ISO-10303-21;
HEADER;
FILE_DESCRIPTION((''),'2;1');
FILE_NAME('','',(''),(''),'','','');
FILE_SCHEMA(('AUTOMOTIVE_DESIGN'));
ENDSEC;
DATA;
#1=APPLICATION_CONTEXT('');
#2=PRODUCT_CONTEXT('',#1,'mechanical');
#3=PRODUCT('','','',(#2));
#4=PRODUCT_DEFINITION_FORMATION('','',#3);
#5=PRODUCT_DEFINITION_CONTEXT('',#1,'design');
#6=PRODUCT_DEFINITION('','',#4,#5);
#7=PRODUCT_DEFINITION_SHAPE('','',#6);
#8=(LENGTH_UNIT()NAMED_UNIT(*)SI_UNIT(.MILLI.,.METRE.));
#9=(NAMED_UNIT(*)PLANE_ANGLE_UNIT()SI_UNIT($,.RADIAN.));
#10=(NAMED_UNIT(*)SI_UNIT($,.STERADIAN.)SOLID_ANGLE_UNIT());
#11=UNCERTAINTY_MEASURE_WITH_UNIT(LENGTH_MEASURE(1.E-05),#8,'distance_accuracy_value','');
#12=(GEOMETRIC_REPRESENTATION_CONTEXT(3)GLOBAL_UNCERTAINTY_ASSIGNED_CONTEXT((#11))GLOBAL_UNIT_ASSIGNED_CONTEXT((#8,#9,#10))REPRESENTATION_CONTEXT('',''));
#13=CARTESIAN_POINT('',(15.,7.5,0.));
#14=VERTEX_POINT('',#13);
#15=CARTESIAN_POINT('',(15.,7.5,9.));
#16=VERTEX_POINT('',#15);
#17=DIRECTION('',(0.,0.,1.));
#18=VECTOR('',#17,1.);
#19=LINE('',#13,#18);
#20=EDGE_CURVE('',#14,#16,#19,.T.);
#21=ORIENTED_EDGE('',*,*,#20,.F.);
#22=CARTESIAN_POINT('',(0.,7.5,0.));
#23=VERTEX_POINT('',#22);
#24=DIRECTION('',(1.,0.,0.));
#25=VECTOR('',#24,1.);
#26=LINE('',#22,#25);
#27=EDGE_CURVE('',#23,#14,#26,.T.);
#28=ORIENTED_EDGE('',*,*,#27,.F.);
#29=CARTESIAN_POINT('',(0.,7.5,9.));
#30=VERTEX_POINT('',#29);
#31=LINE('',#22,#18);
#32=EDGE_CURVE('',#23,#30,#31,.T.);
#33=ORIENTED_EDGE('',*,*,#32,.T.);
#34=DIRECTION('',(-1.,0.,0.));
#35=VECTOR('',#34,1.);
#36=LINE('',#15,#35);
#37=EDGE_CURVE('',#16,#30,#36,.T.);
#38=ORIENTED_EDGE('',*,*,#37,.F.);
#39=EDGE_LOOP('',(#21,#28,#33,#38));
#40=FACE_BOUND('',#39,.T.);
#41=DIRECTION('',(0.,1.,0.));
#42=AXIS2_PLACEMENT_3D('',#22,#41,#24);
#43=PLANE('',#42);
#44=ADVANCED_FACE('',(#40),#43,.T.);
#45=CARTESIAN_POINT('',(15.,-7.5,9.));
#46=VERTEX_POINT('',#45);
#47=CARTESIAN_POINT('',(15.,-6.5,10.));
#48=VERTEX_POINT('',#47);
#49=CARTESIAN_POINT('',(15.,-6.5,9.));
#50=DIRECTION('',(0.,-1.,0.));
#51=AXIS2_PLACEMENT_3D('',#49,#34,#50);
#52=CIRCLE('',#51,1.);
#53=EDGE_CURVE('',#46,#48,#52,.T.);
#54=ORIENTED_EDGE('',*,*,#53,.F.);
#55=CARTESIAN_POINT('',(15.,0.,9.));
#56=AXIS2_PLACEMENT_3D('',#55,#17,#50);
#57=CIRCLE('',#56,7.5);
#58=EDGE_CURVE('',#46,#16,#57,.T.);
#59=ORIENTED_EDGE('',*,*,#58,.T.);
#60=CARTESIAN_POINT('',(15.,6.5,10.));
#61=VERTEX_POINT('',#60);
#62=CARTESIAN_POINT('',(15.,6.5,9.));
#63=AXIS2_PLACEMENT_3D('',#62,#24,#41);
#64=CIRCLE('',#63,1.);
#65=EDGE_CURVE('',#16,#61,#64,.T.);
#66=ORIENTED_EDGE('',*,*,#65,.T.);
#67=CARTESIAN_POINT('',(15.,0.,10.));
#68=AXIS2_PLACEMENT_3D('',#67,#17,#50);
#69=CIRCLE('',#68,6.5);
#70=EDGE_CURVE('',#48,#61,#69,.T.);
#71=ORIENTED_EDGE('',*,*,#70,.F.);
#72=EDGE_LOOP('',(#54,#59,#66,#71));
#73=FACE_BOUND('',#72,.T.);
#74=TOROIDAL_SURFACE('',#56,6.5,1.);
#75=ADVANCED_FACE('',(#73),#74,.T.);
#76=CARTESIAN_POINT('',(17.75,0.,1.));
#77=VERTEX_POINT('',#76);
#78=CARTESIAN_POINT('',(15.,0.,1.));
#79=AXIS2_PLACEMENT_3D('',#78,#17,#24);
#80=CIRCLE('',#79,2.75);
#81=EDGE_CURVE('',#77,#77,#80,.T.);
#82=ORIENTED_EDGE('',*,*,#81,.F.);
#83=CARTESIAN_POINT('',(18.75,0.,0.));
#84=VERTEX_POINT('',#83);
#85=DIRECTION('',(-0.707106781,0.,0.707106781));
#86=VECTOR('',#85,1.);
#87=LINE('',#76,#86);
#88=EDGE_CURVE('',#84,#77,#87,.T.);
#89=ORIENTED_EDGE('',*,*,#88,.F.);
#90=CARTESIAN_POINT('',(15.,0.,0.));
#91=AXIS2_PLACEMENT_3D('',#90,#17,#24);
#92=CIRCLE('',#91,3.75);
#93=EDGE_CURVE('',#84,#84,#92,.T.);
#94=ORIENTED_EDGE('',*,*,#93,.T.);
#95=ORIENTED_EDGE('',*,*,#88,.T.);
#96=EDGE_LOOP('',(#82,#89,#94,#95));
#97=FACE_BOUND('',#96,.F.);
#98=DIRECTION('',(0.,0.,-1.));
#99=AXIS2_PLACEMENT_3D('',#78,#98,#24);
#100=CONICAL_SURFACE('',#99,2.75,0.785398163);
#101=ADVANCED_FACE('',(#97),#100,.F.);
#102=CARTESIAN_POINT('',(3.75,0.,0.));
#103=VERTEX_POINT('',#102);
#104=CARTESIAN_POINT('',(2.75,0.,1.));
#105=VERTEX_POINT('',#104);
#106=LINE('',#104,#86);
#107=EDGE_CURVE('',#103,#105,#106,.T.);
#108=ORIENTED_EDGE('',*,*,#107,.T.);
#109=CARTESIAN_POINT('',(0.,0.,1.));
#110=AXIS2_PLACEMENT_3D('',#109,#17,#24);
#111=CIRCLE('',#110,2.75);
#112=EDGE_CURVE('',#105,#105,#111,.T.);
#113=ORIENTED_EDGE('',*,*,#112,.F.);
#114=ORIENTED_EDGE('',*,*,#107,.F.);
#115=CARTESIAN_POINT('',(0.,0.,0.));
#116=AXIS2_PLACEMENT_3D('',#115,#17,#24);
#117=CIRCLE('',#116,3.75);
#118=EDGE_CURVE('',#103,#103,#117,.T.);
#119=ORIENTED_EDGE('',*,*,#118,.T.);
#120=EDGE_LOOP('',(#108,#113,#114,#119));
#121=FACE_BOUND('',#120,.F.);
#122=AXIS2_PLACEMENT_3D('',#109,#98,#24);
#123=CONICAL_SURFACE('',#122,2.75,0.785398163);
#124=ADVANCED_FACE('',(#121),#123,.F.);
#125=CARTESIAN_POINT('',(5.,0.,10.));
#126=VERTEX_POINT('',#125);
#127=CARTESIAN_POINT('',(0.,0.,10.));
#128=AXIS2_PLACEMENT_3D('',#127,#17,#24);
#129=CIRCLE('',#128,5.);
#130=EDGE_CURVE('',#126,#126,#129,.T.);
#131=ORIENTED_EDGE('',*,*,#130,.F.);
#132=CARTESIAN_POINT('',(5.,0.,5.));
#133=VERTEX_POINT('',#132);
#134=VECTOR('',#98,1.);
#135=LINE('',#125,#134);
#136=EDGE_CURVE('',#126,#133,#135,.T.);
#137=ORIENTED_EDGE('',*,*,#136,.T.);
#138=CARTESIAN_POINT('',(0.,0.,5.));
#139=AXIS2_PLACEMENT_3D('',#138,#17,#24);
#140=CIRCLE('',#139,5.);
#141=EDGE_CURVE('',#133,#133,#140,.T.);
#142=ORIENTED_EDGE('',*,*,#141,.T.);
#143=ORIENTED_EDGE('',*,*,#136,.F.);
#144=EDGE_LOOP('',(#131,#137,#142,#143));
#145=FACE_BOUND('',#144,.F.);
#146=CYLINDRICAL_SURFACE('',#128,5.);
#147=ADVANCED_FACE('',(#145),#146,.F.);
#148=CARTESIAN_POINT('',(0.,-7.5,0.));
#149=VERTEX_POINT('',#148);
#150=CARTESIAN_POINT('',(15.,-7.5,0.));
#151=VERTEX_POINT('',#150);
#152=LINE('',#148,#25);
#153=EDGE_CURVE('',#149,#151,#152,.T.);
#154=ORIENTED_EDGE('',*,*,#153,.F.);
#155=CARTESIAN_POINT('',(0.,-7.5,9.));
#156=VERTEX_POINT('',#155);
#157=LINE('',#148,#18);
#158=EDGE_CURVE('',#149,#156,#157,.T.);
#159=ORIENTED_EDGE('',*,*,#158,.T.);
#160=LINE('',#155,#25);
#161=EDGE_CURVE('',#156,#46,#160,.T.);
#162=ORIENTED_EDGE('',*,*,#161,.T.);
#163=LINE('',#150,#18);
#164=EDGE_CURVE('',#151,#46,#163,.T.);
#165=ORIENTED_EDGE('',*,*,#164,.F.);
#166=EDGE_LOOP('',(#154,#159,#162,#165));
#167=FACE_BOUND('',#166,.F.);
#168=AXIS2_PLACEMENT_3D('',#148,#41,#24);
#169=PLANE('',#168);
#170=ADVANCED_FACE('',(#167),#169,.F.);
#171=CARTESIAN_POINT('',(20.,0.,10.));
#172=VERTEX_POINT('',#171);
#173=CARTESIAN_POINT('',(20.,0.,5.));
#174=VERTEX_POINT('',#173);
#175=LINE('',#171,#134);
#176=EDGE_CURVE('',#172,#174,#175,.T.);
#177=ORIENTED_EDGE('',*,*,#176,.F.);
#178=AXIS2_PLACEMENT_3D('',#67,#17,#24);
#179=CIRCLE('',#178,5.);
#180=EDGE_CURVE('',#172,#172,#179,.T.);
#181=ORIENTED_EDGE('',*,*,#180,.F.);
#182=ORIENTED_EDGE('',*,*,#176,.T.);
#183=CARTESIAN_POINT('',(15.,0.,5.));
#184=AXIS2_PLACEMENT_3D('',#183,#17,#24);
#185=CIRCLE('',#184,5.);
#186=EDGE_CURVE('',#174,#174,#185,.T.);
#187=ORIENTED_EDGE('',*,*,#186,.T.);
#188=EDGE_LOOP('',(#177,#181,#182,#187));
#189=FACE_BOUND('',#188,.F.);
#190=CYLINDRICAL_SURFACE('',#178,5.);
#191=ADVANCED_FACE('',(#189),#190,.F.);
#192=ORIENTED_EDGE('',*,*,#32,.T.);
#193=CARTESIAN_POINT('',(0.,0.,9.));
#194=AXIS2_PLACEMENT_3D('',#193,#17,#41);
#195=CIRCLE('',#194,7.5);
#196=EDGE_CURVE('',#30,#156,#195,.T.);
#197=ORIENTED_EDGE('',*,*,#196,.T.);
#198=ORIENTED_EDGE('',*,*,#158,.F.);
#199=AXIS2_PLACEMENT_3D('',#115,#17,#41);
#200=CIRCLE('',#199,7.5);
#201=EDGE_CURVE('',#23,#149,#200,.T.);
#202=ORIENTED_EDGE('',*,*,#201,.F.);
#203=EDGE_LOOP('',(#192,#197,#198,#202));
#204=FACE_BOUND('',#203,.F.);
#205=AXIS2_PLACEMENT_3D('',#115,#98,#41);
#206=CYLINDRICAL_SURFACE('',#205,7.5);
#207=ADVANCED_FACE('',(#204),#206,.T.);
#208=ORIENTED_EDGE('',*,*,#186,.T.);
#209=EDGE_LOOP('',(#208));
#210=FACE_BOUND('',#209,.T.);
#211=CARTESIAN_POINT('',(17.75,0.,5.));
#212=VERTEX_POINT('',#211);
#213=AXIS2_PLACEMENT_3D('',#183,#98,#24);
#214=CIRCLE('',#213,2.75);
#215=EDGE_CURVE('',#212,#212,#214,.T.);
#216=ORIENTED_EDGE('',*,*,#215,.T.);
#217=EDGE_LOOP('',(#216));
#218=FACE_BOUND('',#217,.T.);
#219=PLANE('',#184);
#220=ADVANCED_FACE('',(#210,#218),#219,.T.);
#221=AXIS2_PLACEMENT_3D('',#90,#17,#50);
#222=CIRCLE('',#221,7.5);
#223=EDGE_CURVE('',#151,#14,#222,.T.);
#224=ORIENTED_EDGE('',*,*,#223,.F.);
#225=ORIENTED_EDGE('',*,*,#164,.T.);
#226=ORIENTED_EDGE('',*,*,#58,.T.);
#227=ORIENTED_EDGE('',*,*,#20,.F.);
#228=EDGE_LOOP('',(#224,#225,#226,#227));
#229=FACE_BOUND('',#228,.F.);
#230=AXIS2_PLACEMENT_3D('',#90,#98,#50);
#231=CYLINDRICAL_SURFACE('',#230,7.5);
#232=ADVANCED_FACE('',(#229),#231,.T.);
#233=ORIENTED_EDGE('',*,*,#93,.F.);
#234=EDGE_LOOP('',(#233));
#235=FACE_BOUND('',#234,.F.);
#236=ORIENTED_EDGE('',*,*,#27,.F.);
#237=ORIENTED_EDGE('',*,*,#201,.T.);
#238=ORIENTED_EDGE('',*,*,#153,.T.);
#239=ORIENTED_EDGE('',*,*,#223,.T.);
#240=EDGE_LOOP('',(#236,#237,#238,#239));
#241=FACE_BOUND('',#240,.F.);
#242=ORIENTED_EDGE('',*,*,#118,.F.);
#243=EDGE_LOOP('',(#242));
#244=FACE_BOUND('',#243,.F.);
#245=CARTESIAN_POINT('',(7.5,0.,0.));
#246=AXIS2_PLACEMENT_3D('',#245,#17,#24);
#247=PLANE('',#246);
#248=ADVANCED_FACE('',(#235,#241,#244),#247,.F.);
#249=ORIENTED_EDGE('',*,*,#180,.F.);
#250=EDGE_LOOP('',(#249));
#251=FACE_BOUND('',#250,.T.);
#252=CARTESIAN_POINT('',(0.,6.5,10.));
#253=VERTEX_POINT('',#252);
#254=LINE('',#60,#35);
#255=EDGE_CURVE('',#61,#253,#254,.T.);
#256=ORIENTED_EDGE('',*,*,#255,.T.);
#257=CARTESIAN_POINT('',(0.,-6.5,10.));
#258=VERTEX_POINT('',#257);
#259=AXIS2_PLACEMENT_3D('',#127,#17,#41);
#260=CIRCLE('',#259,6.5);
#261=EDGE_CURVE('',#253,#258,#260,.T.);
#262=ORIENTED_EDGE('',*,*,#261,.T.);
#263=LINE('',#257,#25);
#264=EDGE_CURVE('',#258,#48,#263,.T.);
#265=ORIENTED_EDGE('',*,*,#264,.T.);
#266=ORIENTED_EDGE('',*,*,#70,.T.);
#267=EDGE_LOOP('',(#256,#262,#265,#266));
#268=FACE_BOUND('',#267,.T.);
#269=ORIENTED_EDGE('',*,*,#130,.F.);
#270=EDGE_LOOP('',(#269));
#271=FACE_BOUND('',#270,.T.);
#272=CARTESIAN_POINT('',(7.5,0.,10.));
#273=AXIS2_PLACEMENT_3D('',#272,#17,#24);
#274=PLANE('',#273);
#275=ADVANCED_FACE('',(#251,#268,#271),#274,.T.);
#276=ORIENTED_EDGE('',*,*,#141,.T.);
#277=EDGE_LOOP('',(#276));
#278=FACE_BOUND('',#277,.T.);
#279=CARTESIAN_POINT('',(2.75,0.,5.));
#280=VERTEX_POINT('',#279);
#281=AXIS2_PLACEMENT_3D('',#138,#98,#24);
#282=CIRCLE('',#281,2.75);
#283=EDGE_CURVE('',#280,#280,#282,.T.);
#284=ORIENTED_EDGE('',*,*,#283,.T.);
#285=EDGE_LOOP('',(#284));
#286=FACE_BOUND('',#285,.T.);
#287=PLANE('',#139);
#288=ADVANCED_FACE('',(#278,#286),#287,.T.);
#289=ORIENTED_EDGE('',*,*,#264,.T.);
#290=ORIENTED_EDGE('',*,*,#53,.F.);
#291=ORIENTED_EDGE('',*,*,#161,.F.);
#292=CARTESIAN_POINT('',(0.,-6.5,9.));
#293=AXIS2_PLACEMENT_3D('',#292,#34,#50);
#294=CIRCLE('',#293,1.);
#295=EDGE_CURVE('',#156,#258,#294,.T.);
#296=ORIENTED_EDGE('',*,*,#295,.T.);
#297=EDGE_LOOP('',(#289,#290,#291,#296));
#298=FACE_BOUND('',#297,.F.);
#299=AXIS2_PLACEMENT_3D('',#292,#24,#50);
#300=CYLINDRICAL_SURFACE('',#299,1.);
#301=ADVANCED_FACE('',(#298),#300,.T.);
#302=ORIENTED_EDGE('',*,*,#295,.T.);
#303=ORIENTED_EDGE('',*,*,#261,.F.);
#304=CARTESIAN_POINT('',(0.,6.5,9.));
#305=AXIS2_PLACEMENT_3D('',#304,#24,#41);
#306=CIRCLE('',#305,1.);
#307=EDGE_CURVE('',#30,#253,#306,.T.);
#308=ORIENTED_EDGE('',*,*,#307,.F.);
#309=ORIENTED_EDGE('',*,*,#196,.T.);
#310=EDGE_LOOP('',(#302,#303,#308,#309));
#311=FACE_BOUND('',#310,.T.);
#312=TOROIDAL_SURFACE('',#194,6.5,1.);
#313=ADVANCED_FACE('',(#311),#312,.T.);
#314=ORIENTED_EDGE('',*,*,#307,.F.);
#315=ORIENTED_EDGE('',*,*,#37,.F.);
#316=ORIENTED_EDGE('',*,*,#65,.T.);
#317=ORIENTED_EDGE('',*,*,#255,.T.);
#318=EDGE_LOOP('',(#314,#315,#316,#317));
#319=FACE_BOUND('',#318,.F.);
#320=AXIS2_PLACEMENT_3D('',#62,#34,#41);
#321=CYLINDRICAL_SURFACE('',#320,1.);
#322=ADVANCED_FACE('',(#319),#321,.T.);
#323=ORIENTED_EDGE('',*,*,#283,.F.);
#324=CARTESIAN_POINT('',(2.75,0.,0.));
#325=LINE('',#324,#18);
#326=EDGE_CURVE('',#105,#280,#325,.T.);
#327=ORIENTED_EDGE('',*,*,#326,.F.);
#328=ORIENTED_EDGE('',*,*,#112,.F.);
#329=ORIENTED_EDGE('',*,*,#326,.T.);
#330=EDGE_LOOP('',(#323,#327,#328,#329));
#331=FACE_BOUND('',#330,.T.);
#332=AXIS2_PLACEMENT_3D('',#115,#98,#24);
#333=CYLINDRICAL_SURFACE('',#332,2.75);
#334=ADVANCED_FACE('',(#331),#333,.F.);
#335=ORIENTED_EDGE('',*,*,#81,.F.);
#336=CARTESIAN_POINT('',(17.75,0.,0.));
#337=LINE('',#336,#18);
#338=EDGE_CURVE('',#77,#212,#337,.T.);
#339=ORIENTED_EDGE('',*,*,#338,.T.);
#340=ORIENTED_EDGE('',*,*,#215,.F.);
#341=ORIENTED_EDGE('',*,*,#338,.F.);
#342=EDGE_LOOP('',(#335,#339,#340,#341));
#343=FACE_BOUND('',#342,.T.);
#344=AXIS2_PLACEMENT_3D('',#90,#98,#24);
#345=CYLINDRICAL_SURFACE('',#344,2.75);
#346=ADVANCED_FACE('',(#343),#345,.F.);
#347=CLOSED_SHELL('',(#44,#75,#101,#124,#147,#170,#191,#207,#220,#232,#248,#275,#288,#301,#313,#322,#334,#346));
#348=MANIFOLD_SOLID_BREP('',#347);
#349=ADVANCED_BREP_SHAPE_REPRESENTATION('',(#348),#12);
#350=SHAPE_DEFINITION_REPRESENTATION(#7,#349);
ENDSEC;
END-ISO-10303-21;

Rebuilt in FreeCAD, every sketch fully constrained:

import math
import FreeCAD as App
import Part
import Sketcher
from FreeCAD import Vector


def edges_at(feature, points):
    """Names of the edges that pass closest to the given points."""
    edges = feature.Shape.Edges
    near = lambda p: min(range(len(edges)), key=lambda i: edges[i].distToShape(Part.Vertex(*p))[0])
    return sorted({f"Edge{near(p) + 1}" for p in points})

doc = App.newDocument("Part")
params = doc.addObject("Spreadsheet::Sheet", "Params")
for row, (alias, value) in enumerate([
    ("sketch1_diameter", "5.5 mm"),
    ("sketch1_radius", "7.5 mm"),
    ("sketch1_width", "15 mm"),
    ("pad1_length", "10 mm"),
    ("fillet_radius", "1 mm"),
    ("chamfer_size", "1 mm"),
    ("sketch2_diameter", "10 mm"),
    ("pocket1_length", "5 mm"),
], start=1):
    params.set(f"A{row}", alias)
    params.set(f"B{row}", "=" + value)
    params.setAlias(f"B{row}", alias)

body = doc.addObject("PartDesign::Body", "Body")

sketch1 = body.newObject("Sketcher::SketchObject", "Sketch")
sketch1.AttachmentSupport = (doc.getObject("XY_Plane"), [""])
sketch1.MapMode = "FlatFace"
sketch1.addGeometry([
    Part.ArcOfCircle(Part.Circle(Vector(0, 0, 0), Vector(0, 0, 1), 7.5), math.radians(90), math.radians(270)),
    Part.LineSegment(Vector(0, -7.5, 0), Vector(15, -7.5, 0)),
    Part.ArcOfCircle(Part.Circle(Vector(15, 0, 0), Vector(0, 0, 1), 7.5), math.radians(-90), math.radians(90)),
    Part.LineSegment(Vector(15, 7.5, 0), Vector(0, 7.5, 0)),
    Part.Circle(Vector(0, 0, 0), Vector(0, 0, 1), 2.75),
    Part.Circle(Vector(15, 0, 0), Vector(0, 0, 1), 2.75),
], False)
sketch1.addConstraint([
    Sketcher.Constraint("Tangent", 0, 2, 1, 1),
    Sketcher.Constraint("Tangent", 1, 2, 2, 1),
    Sketcher.Constraint("Tangent", 2, 2, 3, 1),
    Sketcher.Constraint("Tangent", 3, 2, 0, 1),
    Sketcher.Constraint("Horizontal", 1),
    Sketcher.Constraint("Horizontal", 3),
    Sketcher.Constraint("Coincident", 0, 3, -1, 1),
    Sketcher.Constraint("Coincident", 4, 3, -1, 1),
    Sketcher.Constraint("Coincident", 5, 3, 2, 3),
    Sketcher.Constraint("Equal", 4, 5),
    Sketcher.Constraint("Diameter", 4, 5.5),
    Sketcher.Constraint("Radius", 0, 7.5),
    Sketcher.Constraint("DistanceX", 1, 1, 1, 2, 15.0),
])
sketch1.setExpression("Constraints[10]", "Params.sketch1_diameter")
sketch1.setExpression("Constraints[11]", "Params.sketch1_radius")
sketch1.setExpression("Constraints[12]", "Params.sketch1_width")
pad1 = body.newObject("PartDesign::Pad", "Pad")
pad1.Profile = sketch1
pad1.setExpression("Length", "Params.pad1_length")
doc.recompute()

fillet = body.newObject("PartDesign::Fillet", "Fillet")
fillet.Base = (pad1, edges_at(pad1, [(7.5, -7.5, 10)]))
fillet.setExpression("Radius", "Params.fillet_radius")
doc.recompute()

chamfer = body.newObject("PartDesign::Chamfer", "Chamfer")
chamfer.Base = (fillet, edges_at(fillet, [(12.25, 0, 0), (-2.75, 0, 0)]))
chamfer.setExpression("Size", "Params.chamfer_size")

sketch2 = body.newObject("Sketcher::SketchObject", "Sketch001")
sketch2.AttachmentSupport = (doc.getObject("XY_Plane"), [""])
sketch2.MapMode = "FlatFace"
sketch2.AttachmentOffset = App.Placement(Vector(0, 0, 10), App.Rotation())
sketch2.addGeometry([
    Part.Circle(Vector(0, 0, 0), Vector(0, 0, 1), 5),
    Part.Circle(Vector(15, 0, 0), Vector(0, 0, 1), 5),
], False)
sketch2.addConstraint([
    Sketcher.Constraint("Coincident", 0, 3, -1, 1),
    Sketcher.Constraint("Equal", 0, 1),
    Sketcher.Constraint("PointOnObject", 1, 3, -1),
    Sketcher.Constraint("Diameter", 0, 10.0),
    Sketcher.Constraint("DistanceX", -1, 1, 1, 3, 15.0),
])
sketch2.setExpression("Constraints[3]", "Params.sketch2_diameter")
pocket1 = body.newObject("PartDesign::Pocket", "Pocket")
pocket1.Profile = sketch2
pocket1.setExpression("Length", "Params.pocket1_length")

doc.recompute()
